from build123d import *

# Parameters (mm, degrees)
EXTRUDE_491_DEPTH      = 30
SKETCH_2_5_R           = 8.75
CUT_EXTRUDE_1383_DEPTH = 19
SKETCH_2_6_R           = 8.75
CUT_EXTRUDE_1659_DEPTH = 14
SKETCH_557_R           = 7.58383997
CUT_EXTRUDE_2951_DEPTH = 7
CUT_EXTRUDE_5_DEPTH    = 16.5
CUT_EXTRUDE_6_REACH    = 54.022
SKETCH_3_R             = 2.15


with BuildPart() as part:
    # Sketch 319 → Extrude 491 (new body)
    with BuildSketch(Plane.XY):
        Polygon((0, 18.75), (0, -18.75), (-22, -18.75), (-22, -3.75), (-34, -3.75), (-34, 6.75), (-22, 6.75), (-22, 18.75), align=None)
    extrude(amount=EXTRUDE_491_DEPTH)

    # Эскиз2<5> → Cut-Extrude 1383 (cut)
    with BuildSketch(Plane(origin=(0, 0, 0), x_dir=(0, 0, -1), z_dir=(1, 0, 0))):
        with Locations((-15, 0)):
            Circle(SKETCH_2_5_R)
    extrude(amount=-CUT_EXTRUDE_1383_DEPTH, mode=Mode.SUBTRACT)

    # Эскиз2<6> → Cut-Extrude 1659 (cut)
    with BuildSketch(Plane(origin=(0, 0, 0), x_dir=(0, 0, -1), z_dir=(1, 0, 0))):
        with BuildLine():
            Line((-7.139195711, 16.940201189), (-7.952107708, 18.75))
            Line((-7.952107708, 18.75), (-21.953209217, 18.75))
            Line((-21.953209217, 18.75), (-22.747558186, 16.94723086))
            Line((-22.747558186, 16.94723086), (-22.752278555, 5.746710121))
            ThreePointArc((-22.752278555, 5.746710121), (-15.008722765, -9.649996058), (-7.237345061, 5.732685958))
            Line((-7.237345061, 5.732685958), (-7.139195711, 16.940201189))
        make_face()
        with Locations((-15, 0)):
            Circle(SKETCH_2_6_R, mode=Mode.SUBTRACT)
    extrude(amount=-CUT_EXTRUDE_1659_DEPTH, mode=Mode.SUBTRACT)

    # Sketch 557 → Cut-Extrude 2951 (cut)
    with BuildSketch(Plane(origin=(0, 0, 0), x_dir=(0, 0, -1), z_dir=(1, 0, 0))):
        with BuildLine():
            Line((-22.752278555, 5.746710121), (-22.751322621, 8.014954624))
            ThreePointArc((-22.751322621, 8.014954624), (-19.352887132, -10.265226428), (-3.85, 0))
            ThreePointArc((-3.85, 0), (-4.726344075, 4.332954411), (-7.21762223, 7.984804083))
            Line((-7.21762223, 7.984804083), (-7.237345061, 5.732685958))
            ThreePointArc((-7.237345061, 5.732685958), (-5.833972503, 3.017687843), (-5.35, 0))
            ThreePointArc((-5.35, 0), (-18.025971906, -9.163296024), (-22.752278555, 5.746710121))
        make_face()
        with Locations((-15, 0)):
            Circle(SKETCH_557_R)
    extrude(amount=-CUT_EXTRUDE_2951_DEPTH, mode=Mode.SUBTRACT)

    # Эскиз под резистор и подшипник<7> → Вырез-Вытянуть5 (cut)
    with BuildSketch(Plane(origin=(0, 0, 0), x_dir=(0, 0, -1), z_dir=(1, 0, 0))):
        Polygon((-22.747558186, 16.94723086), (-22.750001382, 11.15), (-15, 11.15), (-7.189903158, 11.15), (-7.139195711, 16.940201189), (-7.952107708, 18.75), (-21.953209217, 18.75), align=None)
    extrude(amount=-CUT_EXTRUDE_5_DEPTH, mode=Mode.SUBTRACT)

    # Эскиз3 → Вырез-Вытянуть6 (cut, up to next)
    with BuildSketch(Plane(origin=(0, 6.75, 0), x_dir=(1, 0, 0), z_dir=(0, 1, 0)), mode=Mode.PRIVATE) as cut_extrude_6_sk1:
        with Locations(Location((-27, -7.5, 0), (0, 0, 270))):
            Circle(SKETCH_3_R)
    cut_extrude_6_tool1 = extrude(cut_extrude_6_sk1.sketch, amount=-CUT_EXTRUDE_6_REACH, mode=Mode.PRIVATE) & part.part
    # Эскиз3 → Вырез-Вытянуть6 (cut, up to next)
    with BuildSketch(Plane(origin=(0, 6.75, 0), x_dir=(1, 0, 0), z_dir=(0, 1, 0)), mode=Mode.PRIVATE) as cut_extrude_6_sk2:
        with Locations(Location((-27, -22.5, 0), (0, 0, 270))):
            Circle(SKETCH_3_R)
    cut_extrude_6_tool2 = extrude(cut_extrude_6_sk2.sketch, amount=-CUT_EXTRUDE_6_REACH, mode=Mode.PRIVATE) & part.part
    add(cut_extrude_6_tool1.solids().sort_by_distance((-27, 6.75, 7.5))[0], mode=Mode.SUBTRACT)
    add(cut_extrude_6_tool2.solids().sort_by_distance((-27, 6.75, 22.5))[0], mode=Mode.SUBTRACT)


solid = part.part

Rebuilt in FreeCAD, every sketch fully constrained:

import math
import FreeCAD as App
import Part
import Sketcher
Q = App.Units.Quantity

doc = App.newDocument("Part")
body = doc.addObject("PartDesign::Body", "Body")

sketch1 = body.newObject("Sketcher::SketchObject", "Sketch")
sketch1.AttachmentSupport = (doc.getObject("XY_Plane"), [""])
sketch1.MapMode = "FlatFace"
sketch1.addGeometry(Part.LineSegment(App.Vector(0, -19, 0), App.Vector(0, 19, 0)), False)
sketch1.addGeometry(Part.LineSegment(App.Vector(0, 19, 0), App.Vector(-22, 19, 0)), False)
sketch1.addGeometry(Part.LineSegment(App.Vector(-22, 19, 0), App.Vector(-22, 7, 0)), False)
sketch1.addGeometry(Part.LineSegment(App.Vector(-22, 7, 0), App.Vector(-34, 7, 0)), False)
sketch1.addGeometry(Part.LineSegment(App.Vector(-34, 7, 0), App.Vector(-34, -4, 0)), False)
sketch1.addGeometry(Part.LineSegment(App.Vector(-34, -4, 0), App.Vector(-22, -4, 0)), False)
sketch1.addGeometry(Part.LineSegment(App.Vector(-22, -4, 0), App.Vector(-22, -19, 0)), False)
sketch1.addGeometry(Part.LineSegment(App.Vector(-22, -19, 0), App.Vector(0, -19, 0)), False)
sketch1.addConstraint(Sketcher.Constraint("Coincident", 0, 2, 1, 1))
sketch1.addConstraint(Sketcher.Constraint("Coincident", 1, 2, 2, 1))
sketch1.addConstraint(Sketcher.Constraint("Coincident", 2, 2, 3, 1))
sketch1.addConstraint(Sketcher.Constraint("Coincident", 3, 2, 4, 1))
sketch1.addConstraint(Sketcher.Constraint("Coincident", 4, 2, 5, 1))
sketch1.addConstraint(Sketcher.Constraint("Coincident", 5, 2, 6, 1))
sketch1.addConstraint(Sketcher.Constraint("Coincident", 6, 2, 7, 1))
sketch1.addConstraint(Sketcher.Constraint("Coincident", 7, 2, 0, 1))
sketch1.addConstraint(Sketcher.Constraint("Vertical", 0))
sketch1.addConstraint(Sketcher.Constraint("Horizontal", 1))
sketch1.addConstraint(Sketcher.Constraint("Vertical", 2))
sketch1.addConstraint(Sketcher.Constraint("Horizontal", 3))
sketch1.addConstraint(Sketcher.Constraint("Vertical", 4))
sketch1.addConstraint(Sketcher.Constraint("Horizontal", 5))
sketch1.addConstraint(Sketcher.Constraint("Vertical", 6))
sketch1.addConstraint(Sketcher.Constraint("Horizontal", 7))
sketch1.addConstraint(Sketcher.Constraint("Symmetric", 0, 2, 7, 2, -1, 1))
sketch1.addConstraint(Sketcher.Constraint("Vertical", 2, 2, 5, 2))
sketch1.addConstraint(Sketcher.Constraint("Equal", 5, 2))
sketch1.addConstraint(Sketcher.Constraint("DistanceX", 1, 2, 1, 1, Q("22 mm")))
sketch1.addConstraint(Sketcher.Constraint("DistanceX", 3, 2, 3, 1, Q("12 mm")))
sketch1.addConstraint(Sketcher.Constraint("DistanceY", 6, 2, 6, 1, Q("15 mm")))
sketch1.addConstraint(Sketcher.Constraint("DistanceY", 0, 1, 0, 2, Q("37.5 mm")))
pad1 = body.newObject("PartDesign::Pad", "Pad")
pad1.Profile = sketch1
pad1.Length = 30

sketch2 = body.newObject("Sketcher::SketchObject", "Sketch001")
sketch2.AttachmentSupport = (doc.getObject("YZ_Plane"), [""])
sketch2.MapMode = "FlatFace"
sketch2.addGeometry(Part.Circle(App.Vector(0, 15, 0), App.Vector(0, 0, 1), 9), False)
sketch2.addConstraint(Sketcher.Constraint("PointOnObject", 0, 3, -2))
sketch2.addConstraint(Sketcher.Constraint("Diameter", 0, Q("17.5 mm")))
sketch2.addConstraint(Sketcher.Constraint("DistanceY", -1, 1, 0, 3, Q("15 mm")))
pocket1 = body.newObject("PartDesign::Pocket", "Pocket")
pocket1.Profile = sketch2
pocket1.Length = 19

sketch3 = body.newObject("Sketcher::SketchObject", "Sketch002")
sketch3.AttachmentSupport = (doc.getObject("YZ_Plane"), [""])
sketch3.MapMode = "FlatFace"
sketch3.addGeometry(Part.LineSegment(App.Vector(16.9, 7.1, 0), App.Vector(18.8, 8, 0)), False)
sketch3.addGeometry(Part.LineSegment(App.Vector(18.8, 8, 0), App.Vector(18.8, 22, 0)), False)
sketch3.addGeometry(Part.LineSegment(App.Vector(18.8, 22, 0), App.Vector(16.9, 22.7, 0)), False)
sketch3.addGeometry(Part.LineSegment(App.Vector(16.9, 22.7, 0), App.Vector(5.7, 22.8, 0)), False)
sketch3.addGeometry(Part.ArcOfCircle(Part.Circle(App.Vector(0, 15, 0), App.Vector(0, 0, 1), 9.7), math.radians(53), math.radians(306)), False)
sketch3.addGeometry(Part.LineSegment(App.Vector(5.7, 7.2, 0), App.Vector(16.9, 7.1, 0)), False)
sketch3.addGeometry(Part.Circle(App.Vector(0, 15, 0), App.Vector(0, 0, 1), 8.8), False)
sketch3.addConstraint(Sketcher.Constraint("Coincident", 0, 2, 1, 1))
sketch3.addConstraint(Sketcher.Constraint("Coincident", 1, 2, 2, 1))
sketch3.addConstraint(Sketcher.Constraint("Coincident", 2, 2, 3, 1))
sketch3.addConstraint(Sketcher.Constraint("Coincident", 3, 2, 4, 1))
sketch3.addConstraint(Sketcher.Constraint("Coincident", 4, 2, 5, 1))
sketch3.addConstraint(Sketcher.Constraint("Coincident", 5, 2, 0, 1))
sketch3.addConstraint(Sketcher.Constraint("Vertical", 1))
sketch3.addConstraint(Sketcher.Constraint("Coincident", 6, 3, 4, 3))
sketch3.addConstraint(Sketcher.Constraint("PointOnObject", 4, 3, -2))
sketch3.addConstraint(Sketcher.Constraint("Diameter", 6, Q("17.5 mm")))
sketch3.addConstraint(Sketcher.Constraint("Radius", 4, Q("9.65 mm")))
sketch3.addConstraint(Sketcher.Constraint("DistanceY", -1, 1, 4, 3, Q("15 mm")))
sketch3.addConstraint(Sketcher.Constraint("DistanceX", -1, 1, 0, 2, Q("18.75 mm")))
sketch3.addConstraint(Sketcher.Constraint("DistanceY", 1, 1, 1, 2, Q("14.001102 mm")))
sketch3.addConstraint(Sketcher.Constraint("DistanceX", -1, 1, 5, 2, Q("16.940201 mm")))
sketch3.addConstraint(Sketcher.Constraint("Distance", 3, Q("11.200522 mm")))
sketch3.addConstraint(Sketcher.Constraint("DistanceY", -1, 1, 1, 2, Q("21.953209 mm")))
sketch3.addConstraint(Sketcher.Constraint("DistanceX", -1, 1, 2, 2, Q("16.947231 mm")))
sketch3.addConstraint(Sketcher.Constraint("DistanceY", -1, 1, 2, 2, Q("22.747558 mm")))
sketch3.addConstraint(Sketcher.Constraint("DistanceY", 5, 2, 0, 2, Q("0.812912 mm")))
sketch3.addConstraint(Sketcher.Constraint("DistanceY", 5, 2, 4, 2, Q("0.098149 mm")))
pocket2 = body.newObject("PartDesign::Pocket", "Pocket001")
pocket2.Profile = sketch3
pocket2.Length = 14

sketch4 = body.newObject("Sketcher::SketchObject", "Sketch003")
sketch4.AttachmentSupport = (doc.getObject("YZ_Plane"), [""])
sketch4.MapMode = "FlatFace"
sketch4.addGeometry(Part.LineSegment(App.Vector(5.7, 22.8, 0), App.Vector(8, 22.8, 0)), False)
sketch4.addGeometry(Part.ArcOfCircle(Part.Circle(App.Vector(0, 15, 0), App.Vector(0, 0, 1), 11.2), math.radians(44), math.radians(270)), False)
sketch4.addGeometry(Part.ArcOfCircle(Part.Circle(App.Vector(0, 15, 0), App.Vector(0, 0, 1), 11.2), math.radians(-90), math.radians(-44)), False)
sketch4.addGeometry(Part.LineSegment(App.Vector(8, 7.2, 0), App.Vector(5.7, 7.2, 0)), False)
sketch4.addGeometry(Part.ArcOfCircle(Part.Circle(App.Vector(0, 15, 0), App.Vector(0, 0, 1), 9.7), math.radians(-90), math.radians(-54)), False)
sketch4.addGeometry(Part.ArcOfCircle(Part.Circle(App.Vector(0, 15, 0), App.Vector(0, 0, 1), 9.7), math.radians(53), math.radians(270)), False)
sketch4.addGeometry(Part.Circle(App.Vector(0, 15, 0), App.Vector(0, 0, 1), 7.6), False)
sketch4.addConstraint(Sketcher.Constraint("Coincident", 0, 2, 1, 1))
sketch4.addConstraint(Sketcher.Constraint("Tangent", 1, 2, 2, 1))
sketch4.addConstraint(Sketcher.Constraint("Coincident", 2, 2, 3, 1))
sketch4.addConstraint(Sketcher.Constraint("Coincident", 3, 2, 4, 2))
sketch4.addConstraint(Sketcher.Constraint("Tangent", 4, 1, 5, 2))
sketch4.addConstraint(Sketcher.Constraint("Coincident", 5, 1, 0, 1))
sketch4.addConstraint(Sketcher.Constraint("Coincident", 4, 3, 1, 3))
sketch4.addConstraint(Sketcher.Constraint("Coincident", 6, 3, 1, 3))
sketch4.addConstraint(Sketcher.Constraint("Equal", 1, 2))
sketch4.addConstraint(Sketcher.Constraint("Equal", 4, 5))
sketch4.addConstraint(Sketcher.Constraint("PointOnObject", 1, 3, -2))
sketch4.addConstraint(Sketcher.Constraint("PointOnObject", 1, 2, -2))
sketch4.addConstraint(Sketcher.Constraint("PointOnObject", 4, 1, -2))
sketch4.addConstraint(Sketcher.Constraint("Radius", 1, Q("11.15 mm")))
sketch4.addConstraint(Sketcher.Constraint("Radius", 4, Q("9.65 mm")))
sketch4.addConstraint(Sketcher.Constraint("DistanceY", -1, 1, 1, 3, Q("15 mm")))
sketch4.addConstraint(Sketcher.Constraint("Diameter", 6, Q("15.16768 mm")))
sketch4.addConstraint(Sketcher.Constraint("DistanceX", -1, 1, 5, 1, Q("5.74671 mm")))
sketch4.addConstraint(Sketcher.Constraint("DistanceX", 3, 2, 2, 2, Q("2.252118 mm")))
sketch4.addConstraint(Sketcher.Constraint("Distance", 0, Q("2.268245 mm")))
sketch4.addConstraint(Sketcher.Constraint("DistanceX", -1, 1, 2, 2, Q("7.984804 mm")))
pocket3 = body.newObject("PartDesign::Pocket", "Pocket002")
pocket3.Profile = sketch4
pocket3.Length = 7

sketch5 = body.newObject("Sketcher::SketchObject", "Sketch004")
sketch5.AttachmentSupport = (doc.getObject("YZ_Plane"), [""])
sketch5.MapMode = "FlatFace"
sketch5.addGeometry(Part.LineSegment(App.Vector(16.9, 22.7, 0), App.Vector(11.2, 22.8, 0)), False)
sketch5.addGeometry(Part.LineSegment(App.Vector(11.2, 22.8, 0), App.Vector(11.2, 7.2, 0)), False)
sketch5.addGeometry(Part.LineSegment(App.Vector(11.2, 7.2, 0), App.Vector(16.9, 7.1, 0)), False)
sketch5.addGeometry(Part.LineSegment(App.Vector(16.9, 7.1, 0), App.Vector(18.8, 8, 0)), False)
sketch5.addGeometry(Part.LineSegment(App.Vector(18.8, 8, 0), App.Vector(18.8, 22, 0)), False)
sketch5.addGeometry(Part.LineSegment(App.Vector(18.8, 22, 0), App.Vector(16.9, 22.7, 0)), False)
sketch5.addConstraint(Sketcher.Constraint("Coincident", 0, 2, 1, 1))
sketch5.addConstraint(Sketcher.Constraint("Coincident", 1, 2, 2, 1))
sketch5.addConstraint(Sketcher.Constraint("Coincident", 2, 2, 3, 1))
sketch5.addConstraint(Sketcher.Constraint("Coincident", 3, 2, 4, 1))
sketch5.addConstraint(Sketcher.Constraint("Coincident", 4, 2, 5, 1))
sketch5.addConstraint(Sketcher.Constraint("Coincident", 5, 2, 0, 1))
sketch5.addConstraint(Sketcher.Constraint("Vertical", 1))
sketch5.addConstraint(Sketcher.Constraint("Vertical", 4))
sketch5.addConstraint(Sketcher.Constraint("DistanceX", 1, 2, 3, 2, Q("7.6 mm")))
sketch5.addConstraint(Sketcher.Constraint("DistanceX", -1, 1, 0, 2, Q("11.15 mm")))
sketch5.addConstraint(Sketcher.Constraint("DistanceY", -1, 1, 0, 2, Q("22.750001 mm")))
sketch5.addConstraint(Sketcher.Constraint("DistanceY", 1, 2, 1, 1, Q("15.560098 mm")))
sketch5.addConstraint(Sketcher.Constraint("DistanceY", 4, 1, 4, 2, Q("14.001102 mm")))
sketch5.addConstraint(Sketcher.Constraint("DistanceX", -1, 1, 2, 2, Q("16.940201 mm")))
sketch5.addConstraint(Sketcher.Constraint("Distance", 0, Q("5.797231 mm")))
sketch5.addConstraint(Sketcher.Constraint("DistanceY", -1, 1, 4, 2, Q("21.953209 mm")))
sketch5.addConstraint(Sketcher.Constraint("DistanceY", -1, 1, 5, 2, Q("22.747558 mm")))
sketch5.addConstraint(Sketcher.Constraint("DistanceY", 2, 2, 3, 2, Q("0.812912 mm")))
pocket4 = body.newObject("PartDesign::Pocket", "Pocket003")
pocket4.Profile = sketch5
pocket4.Length = 16.5

sketch6 = body.newObject("Sketcher::SketchObject", "Sketch005")
sketch6.AttachmentSupport = (doc.getObject("XZ_Plane"), [""])
sketch6.MapMode = "FlatFace"
sketch6.AttachmentOffset = App.Placement(App.Vector(0, 0, -6.75), App.Rotation())
sketch6.addGeometry(Part.Circle(App.Vector(-27, 7.5, 0), App.Vector(0, 0, 1), 2.1), False)
sketch6.addConstraint(Sketcher.Constraint("Diameter", 0, Q("4.3 mm")))
sketch6.addConstraint(Sketcher.Constraint("DistanceX", 0, 3, -1, 1, Q("27 mm")))
sketch6.addConstraint(Sketcher.Constraint("DistanceY", -1, 1, 0, 3, Q("7.5 mm")))
pocket5 = body.newObject("PartDesign::Pocket", "Pocket004")
pocket5.Profile = sketch6
pocket5.Type = "UpToFirst"
pocket5.Reversed = True

sketch7 = body.newObject("Sketcher::SketchObject", "Sketch006")
sketch7.AttachmentSupport = (doc.getObject("XZ_Plane"), [""])
sketch7.MapMode = "FlatFace"
sketch7.AttachmentOffset = App.Placement(App.Vector(0, 0, -6.75), App.Rotation())
sketch7.addGeometry(Part.Circle(App.Vector(-27, 22.5, 0), App.Vector(0, 0, 1), 2.1), False)
sketch7.addConstraint(Sketcher.Constraint("Diameter", 0, Q("4.3 mm")))
sketch7.addConstraint(Sketcher.Constraint("DistanceX", 0, 3, -1, 1, Q("27 mm")))
sketch7.addConstraint(Sketcher.Constraint("DistanceY", -1, 1, 0, 3, Q("22.5 mm")))
pocket6 = body.newObject("PartDesign::Pocket", "Pocket005")
pocket6.Profile = sketch7
pocket6.Type = "UpToFirst"
pocket6.Reversed = True

doc.recompute()
